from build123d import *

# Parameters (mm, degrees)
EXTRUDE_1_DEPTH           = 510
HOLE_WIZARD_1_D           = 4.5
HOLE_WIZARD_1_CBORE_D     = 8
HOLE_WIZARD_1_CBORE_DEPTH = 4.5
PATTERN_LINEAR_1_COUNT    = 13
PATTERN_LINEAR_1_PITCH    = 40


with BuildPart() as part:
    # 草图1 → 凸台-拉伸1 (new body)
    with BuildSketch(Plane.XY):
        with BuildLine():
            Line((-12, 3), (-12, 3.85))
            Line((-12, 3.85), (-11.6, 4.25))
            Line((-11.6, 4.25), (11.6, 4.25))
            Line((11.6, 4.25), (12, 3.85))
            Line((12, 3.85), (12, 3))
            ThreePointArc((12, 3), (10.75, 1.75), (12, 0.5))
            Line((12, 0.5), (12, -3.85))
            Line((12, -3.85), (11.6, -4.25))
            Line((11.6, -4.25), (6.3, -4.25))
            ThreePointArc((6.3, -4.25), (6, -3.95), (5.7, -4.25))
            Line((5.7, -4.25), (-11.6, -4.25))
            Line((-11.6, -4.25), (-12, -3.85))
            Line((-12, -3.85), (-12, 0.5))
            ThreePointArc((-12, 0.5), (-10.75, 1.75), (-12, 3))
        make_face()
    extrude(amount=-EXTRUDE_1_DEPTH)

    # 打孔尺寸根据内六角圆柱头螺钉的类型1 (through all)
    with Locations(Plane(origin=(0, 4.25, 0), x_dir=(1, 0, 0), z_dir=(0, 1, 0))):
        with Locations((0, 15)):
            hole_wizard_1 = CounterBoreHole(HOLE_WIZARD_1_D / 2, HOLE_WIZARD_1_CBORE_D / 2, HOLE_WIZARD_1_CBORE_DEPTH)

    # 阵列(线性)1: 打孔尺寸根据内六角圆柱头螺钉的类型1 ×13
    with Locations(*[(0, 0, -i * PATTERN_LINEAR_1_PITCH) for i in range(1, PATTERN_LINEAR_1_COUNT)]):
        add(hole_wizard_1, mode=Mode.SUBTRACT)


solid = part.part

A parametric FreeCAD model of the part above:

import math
import FreeCAD as App
import Part
import Sketcher
Q = App.Units.Quantity

doc = App.newDocument("Part")
body = doc.addObject("PartDesign::Body", "Body")

sketch1 = doc.addObject("Sketcher::SketchObject", "Sketch")
body.addObject(sketch1)
sketch1.AttachmentSupport = (doc.XY_Plane, [""])
sketch1.MapMode = "FlatFace"
sketch1.addGeometry(Part.LineSegment(App.Vector(-12, 3.85, 0), App.Vector(-12, 3, 0)), False)
sketch1.addGeometry(Part.ArcOfCircle(Part.Circle(App.Vector(-12, 1.75, 0), App.Vector(0, 0, 1), 1.25), math.radians(-90), math.radians(90)), False)
sketch1.addGeometry(Part.LineSegment(App.Vector(-12, 0.5, 0), App.Vector(-12, -3.85, 0)), False)
sketch1.addGeometry(Part.LineSegment(App.Vector(-12, -3.85, 0), App.Vector(-11.6, -4.25, 0)), False)
sketch1.addGeometry(Part.LineSegment(App.Vector(-11.6, -4.25, 0), App.Vector(5.7, -4.25, 0)), False)
sketch1.addGeometry(Part.ArcOfCircle(Part.Circle(App.Vector(6, -4.25, 0), App.Vector(0, 0, 1), 0.3), math.radians(0), math.radians(180)), False)
sketch1.addGeometry(Part.LineSegment(App.Vector(6.3, -4.25, 0), App.Vector(11.6, -4.25, 0)), False)
sketch1.addGeometry(Part.LineSegment(App.Vector(11.6, -4.25, 0), App.Vector(12, -3.85, 0)), False)
sketch1.addGeometry(Part.LineSegment(App.Vector(12, -3.85, 0), App.Vector(12, 0.5, 0)), False)
sketch1.addGeometry(Part.ArcOfCircle(Part.Circle(App.Vector(12, 1.75, 0), App.Vector(0, 0, 1), 1.25), math.radians(90), math.radians(270)), False)
sketch1.addGeometry(Part.LineSegment(App.Vector(12, 3, 0), App.Vector(12, 3.85, 0)), False)
sketch1.addGeometry(Part.LineSegment(App.Vector(12, 3.85, 0), App.Vector(11.6, 4.25, 0)), False)
sketch1.addGeometry(Part.LineSegment(App.Vector(11.6, 4.25, 0), App.Vector(-11.6, 4.25, 0)), False)
sketch1.addGeometry(Part.LineSegment(App.Vector(-11.6, 4.25, 0), App.Vector(-12, 3.85, 0)), False)
sketch1.addConstraint(Sketcher.Constraint("Coincident", 0, 2, 1, 2))
sketch1.addConstraint(Sketcher.Constraint("Coincident", 1, 1, 2, 1))
sketch1.addConstraint(Sketcher.Constraint("Coincident", 2, 2, 3, 1))
sketch1.addConstraint(Sketcher.Constraint("Coincident", 3, 2, 4, 1))
sketch1.addConstraint(Sketcher.Constraint("Coincident", 4, 2, 5, 2))
sketch1.addConstraint(Sketcher.Constraint("Coincident", 5, 1, 6, 1))
sketch1.addConstraint(Sketcher.Constraint("Coincident", 6, 2, 7, 1))
sketch1.addConstraint(Sketcher.Constraint("Coincident", 7, 2, 8, 1))
sketch1.addConstraint(Sketcher.Constraint("Coincident", 8, 2, 9, 2))
sketch1.addConstraint(Sketcher.Constraint("Coincident", 9, 1, 10, 1))
sketch1.addConstraint(Sketcher.Constraint("Coincident", 10, 2, 11, 1))
sketch1.addConstraint(Sketcher.Constraint("Coincident", 11, 2, 12, 1))
sketch1.addConstraint(Sketcher.Constraint("Coincident", 12, 2, 13, 1))
sketch1.addConstraint(Sketcher.Constraint("Coincident", 13, 2, 0, 1))
sketch1.addConstraint(Sketcher.Constraint("Vertical", 0))
sketch1.addConstraint(Sketcher.Constraint("Vertical", 2))
sketch1.addConstraint(Sketcher.Constraint("Horizontal", 4))
sketch1.addConstraint(Sketcher.Constraint("Horizontal", 6))
sketch1.addConstraint(Sketcher.Constraint("Vertical", 8))
sketch1.addConstraint(Sketcher.Constraint("Vertical", 10))
sketch1.addConstraint(Sketcher.Constraint("Horizontal", 12))
sketch1.addConstraint(Sketcher.Constraint("Equal", 1, 9))
sketch1.addConstraint(Sketcher.Constraint("Symmetric", 2, 2, 10, 2, -1, 1))
sketch1.addConstraint(Sketcher.Constraint("Symmetric", 3, 2, 11, 2, -1, 1))
sketch1.addConstraint(Sketcher.Constraint("Symmetric", 6, 2, 12, 2, -1, 1))
sketch1.addConstraint(Sketcher.Constraint("Symmetric", 7, 2, 13, 2, -1, 1))
sketch1.addConstraint(Sketcher.Constraint("Symmetric", 1, 3, 9, 3, -2))
sketch1.addConstraint(Sketcher.Constraint("Symmetric", 2, 2, 7, 2, -2))
sketch1.addConstraint(Sketcher.Constraint("Perpendicular", 3, 7))
sketch1.addConstraint(Sketcher.Constraint("Horizontal", 5, 3, 3, 2))
sketch1.addConstraint(Sketcher.Constraint("Vertical", 1, 3, 0, 2))
sketch1.addConstraint(Sketcher.Constraint("Vertical", 6, 2, 11, 2))
sketch1.addConstraint(Sketcher.Constraint("Radius", 5, Q("0.3 mm")))
sketch1.addConstraint(Sketcher.Constraint("Radius", 1, Q("1.25 mm")))
sketch1.addConstraint(Sketcher.Constraint("DistanceX", 4, 1, 4, 2, Q("17.3 mm")))
sketch1.addConstraint(Sketcher.Constraint("DistanceX", 6, 1, 6, 2, Q("5.3 mm")))
sketch1.addConstraint(Sketcher.Constraint("DistanceX", 1, 3, -1, 1, Q("12 mm")))
sketch1.addConstraint(Sketcher.Constraint("DistanceY", -1, 1, 0, 2, Q("3 mm")))
sketch1.addConstraint(Sketcher.Constraint("DistanceY", 5, 3, 1, 3, Q("6 mm")))
pad1 = doc.addObject("PartDesign::Pad", "Pad")
body.addObject(pad1)
pad1.Profile = sketch1
pad1.Length = 510
pad1.Reversed = True

sketch2 = doc.addObject("Sketcher::SketchObject", "Sketch001")
body.addObject(sketch2)
sketch2.AttachmentSupport = (doc.XZ_Plane, [""])
sketch2.MapMode = "FlatFace"
sketch2.AttachmentOffset = App.Placement(App.Vector(0, 0, -4.25), App.Rotation())
sketch2.addGeometry(Part.Circle(App.Vector(0, -15, 0), App.Vector(0, 0, 1), 2.25), False)
sketch2.addConstraint(Sketcher.Constraint("PointOnObject", 0, 3, -2))
sketch2.addConstraint(Sketcher.Constraint("Diameter", 0, Q("4.5 mm")))
sketch2.addConstraint(Sketcher.Constraint("DistanceY", 0, 3, -1, 1, Q("15 mm")))
doc.recompute()
hole = doc.addObject("PartDesign::Hole", "Hole")
body.addObject(hole)
hole.Profile = sketch2
hole.ThreadType = "None"
hole.Diameter = 4.5
hole.DepthType = "ThroughAll"
hole.HoleCutType = "Counterbore"
hole.HoleCutDiameter = 8
hole.HoleCutDepth = 4.5
hole.Reversed = True
doc.recompute()

linearpattern = doc.addObject("PartDesign::LinearPattern", "LinearPattern")
body.addObject(linearpattern)
linearpattern.Originals = [hole]
linearpattern.Direction = (doc.Z_Axis, [""])
linearpattern.Mode = "offset"
linearpattern.Offset = 40
linearpattern.Occurrences = 13
linearpattern.Reversed = True
body.Tip = linearpattern

doc.recompute()
